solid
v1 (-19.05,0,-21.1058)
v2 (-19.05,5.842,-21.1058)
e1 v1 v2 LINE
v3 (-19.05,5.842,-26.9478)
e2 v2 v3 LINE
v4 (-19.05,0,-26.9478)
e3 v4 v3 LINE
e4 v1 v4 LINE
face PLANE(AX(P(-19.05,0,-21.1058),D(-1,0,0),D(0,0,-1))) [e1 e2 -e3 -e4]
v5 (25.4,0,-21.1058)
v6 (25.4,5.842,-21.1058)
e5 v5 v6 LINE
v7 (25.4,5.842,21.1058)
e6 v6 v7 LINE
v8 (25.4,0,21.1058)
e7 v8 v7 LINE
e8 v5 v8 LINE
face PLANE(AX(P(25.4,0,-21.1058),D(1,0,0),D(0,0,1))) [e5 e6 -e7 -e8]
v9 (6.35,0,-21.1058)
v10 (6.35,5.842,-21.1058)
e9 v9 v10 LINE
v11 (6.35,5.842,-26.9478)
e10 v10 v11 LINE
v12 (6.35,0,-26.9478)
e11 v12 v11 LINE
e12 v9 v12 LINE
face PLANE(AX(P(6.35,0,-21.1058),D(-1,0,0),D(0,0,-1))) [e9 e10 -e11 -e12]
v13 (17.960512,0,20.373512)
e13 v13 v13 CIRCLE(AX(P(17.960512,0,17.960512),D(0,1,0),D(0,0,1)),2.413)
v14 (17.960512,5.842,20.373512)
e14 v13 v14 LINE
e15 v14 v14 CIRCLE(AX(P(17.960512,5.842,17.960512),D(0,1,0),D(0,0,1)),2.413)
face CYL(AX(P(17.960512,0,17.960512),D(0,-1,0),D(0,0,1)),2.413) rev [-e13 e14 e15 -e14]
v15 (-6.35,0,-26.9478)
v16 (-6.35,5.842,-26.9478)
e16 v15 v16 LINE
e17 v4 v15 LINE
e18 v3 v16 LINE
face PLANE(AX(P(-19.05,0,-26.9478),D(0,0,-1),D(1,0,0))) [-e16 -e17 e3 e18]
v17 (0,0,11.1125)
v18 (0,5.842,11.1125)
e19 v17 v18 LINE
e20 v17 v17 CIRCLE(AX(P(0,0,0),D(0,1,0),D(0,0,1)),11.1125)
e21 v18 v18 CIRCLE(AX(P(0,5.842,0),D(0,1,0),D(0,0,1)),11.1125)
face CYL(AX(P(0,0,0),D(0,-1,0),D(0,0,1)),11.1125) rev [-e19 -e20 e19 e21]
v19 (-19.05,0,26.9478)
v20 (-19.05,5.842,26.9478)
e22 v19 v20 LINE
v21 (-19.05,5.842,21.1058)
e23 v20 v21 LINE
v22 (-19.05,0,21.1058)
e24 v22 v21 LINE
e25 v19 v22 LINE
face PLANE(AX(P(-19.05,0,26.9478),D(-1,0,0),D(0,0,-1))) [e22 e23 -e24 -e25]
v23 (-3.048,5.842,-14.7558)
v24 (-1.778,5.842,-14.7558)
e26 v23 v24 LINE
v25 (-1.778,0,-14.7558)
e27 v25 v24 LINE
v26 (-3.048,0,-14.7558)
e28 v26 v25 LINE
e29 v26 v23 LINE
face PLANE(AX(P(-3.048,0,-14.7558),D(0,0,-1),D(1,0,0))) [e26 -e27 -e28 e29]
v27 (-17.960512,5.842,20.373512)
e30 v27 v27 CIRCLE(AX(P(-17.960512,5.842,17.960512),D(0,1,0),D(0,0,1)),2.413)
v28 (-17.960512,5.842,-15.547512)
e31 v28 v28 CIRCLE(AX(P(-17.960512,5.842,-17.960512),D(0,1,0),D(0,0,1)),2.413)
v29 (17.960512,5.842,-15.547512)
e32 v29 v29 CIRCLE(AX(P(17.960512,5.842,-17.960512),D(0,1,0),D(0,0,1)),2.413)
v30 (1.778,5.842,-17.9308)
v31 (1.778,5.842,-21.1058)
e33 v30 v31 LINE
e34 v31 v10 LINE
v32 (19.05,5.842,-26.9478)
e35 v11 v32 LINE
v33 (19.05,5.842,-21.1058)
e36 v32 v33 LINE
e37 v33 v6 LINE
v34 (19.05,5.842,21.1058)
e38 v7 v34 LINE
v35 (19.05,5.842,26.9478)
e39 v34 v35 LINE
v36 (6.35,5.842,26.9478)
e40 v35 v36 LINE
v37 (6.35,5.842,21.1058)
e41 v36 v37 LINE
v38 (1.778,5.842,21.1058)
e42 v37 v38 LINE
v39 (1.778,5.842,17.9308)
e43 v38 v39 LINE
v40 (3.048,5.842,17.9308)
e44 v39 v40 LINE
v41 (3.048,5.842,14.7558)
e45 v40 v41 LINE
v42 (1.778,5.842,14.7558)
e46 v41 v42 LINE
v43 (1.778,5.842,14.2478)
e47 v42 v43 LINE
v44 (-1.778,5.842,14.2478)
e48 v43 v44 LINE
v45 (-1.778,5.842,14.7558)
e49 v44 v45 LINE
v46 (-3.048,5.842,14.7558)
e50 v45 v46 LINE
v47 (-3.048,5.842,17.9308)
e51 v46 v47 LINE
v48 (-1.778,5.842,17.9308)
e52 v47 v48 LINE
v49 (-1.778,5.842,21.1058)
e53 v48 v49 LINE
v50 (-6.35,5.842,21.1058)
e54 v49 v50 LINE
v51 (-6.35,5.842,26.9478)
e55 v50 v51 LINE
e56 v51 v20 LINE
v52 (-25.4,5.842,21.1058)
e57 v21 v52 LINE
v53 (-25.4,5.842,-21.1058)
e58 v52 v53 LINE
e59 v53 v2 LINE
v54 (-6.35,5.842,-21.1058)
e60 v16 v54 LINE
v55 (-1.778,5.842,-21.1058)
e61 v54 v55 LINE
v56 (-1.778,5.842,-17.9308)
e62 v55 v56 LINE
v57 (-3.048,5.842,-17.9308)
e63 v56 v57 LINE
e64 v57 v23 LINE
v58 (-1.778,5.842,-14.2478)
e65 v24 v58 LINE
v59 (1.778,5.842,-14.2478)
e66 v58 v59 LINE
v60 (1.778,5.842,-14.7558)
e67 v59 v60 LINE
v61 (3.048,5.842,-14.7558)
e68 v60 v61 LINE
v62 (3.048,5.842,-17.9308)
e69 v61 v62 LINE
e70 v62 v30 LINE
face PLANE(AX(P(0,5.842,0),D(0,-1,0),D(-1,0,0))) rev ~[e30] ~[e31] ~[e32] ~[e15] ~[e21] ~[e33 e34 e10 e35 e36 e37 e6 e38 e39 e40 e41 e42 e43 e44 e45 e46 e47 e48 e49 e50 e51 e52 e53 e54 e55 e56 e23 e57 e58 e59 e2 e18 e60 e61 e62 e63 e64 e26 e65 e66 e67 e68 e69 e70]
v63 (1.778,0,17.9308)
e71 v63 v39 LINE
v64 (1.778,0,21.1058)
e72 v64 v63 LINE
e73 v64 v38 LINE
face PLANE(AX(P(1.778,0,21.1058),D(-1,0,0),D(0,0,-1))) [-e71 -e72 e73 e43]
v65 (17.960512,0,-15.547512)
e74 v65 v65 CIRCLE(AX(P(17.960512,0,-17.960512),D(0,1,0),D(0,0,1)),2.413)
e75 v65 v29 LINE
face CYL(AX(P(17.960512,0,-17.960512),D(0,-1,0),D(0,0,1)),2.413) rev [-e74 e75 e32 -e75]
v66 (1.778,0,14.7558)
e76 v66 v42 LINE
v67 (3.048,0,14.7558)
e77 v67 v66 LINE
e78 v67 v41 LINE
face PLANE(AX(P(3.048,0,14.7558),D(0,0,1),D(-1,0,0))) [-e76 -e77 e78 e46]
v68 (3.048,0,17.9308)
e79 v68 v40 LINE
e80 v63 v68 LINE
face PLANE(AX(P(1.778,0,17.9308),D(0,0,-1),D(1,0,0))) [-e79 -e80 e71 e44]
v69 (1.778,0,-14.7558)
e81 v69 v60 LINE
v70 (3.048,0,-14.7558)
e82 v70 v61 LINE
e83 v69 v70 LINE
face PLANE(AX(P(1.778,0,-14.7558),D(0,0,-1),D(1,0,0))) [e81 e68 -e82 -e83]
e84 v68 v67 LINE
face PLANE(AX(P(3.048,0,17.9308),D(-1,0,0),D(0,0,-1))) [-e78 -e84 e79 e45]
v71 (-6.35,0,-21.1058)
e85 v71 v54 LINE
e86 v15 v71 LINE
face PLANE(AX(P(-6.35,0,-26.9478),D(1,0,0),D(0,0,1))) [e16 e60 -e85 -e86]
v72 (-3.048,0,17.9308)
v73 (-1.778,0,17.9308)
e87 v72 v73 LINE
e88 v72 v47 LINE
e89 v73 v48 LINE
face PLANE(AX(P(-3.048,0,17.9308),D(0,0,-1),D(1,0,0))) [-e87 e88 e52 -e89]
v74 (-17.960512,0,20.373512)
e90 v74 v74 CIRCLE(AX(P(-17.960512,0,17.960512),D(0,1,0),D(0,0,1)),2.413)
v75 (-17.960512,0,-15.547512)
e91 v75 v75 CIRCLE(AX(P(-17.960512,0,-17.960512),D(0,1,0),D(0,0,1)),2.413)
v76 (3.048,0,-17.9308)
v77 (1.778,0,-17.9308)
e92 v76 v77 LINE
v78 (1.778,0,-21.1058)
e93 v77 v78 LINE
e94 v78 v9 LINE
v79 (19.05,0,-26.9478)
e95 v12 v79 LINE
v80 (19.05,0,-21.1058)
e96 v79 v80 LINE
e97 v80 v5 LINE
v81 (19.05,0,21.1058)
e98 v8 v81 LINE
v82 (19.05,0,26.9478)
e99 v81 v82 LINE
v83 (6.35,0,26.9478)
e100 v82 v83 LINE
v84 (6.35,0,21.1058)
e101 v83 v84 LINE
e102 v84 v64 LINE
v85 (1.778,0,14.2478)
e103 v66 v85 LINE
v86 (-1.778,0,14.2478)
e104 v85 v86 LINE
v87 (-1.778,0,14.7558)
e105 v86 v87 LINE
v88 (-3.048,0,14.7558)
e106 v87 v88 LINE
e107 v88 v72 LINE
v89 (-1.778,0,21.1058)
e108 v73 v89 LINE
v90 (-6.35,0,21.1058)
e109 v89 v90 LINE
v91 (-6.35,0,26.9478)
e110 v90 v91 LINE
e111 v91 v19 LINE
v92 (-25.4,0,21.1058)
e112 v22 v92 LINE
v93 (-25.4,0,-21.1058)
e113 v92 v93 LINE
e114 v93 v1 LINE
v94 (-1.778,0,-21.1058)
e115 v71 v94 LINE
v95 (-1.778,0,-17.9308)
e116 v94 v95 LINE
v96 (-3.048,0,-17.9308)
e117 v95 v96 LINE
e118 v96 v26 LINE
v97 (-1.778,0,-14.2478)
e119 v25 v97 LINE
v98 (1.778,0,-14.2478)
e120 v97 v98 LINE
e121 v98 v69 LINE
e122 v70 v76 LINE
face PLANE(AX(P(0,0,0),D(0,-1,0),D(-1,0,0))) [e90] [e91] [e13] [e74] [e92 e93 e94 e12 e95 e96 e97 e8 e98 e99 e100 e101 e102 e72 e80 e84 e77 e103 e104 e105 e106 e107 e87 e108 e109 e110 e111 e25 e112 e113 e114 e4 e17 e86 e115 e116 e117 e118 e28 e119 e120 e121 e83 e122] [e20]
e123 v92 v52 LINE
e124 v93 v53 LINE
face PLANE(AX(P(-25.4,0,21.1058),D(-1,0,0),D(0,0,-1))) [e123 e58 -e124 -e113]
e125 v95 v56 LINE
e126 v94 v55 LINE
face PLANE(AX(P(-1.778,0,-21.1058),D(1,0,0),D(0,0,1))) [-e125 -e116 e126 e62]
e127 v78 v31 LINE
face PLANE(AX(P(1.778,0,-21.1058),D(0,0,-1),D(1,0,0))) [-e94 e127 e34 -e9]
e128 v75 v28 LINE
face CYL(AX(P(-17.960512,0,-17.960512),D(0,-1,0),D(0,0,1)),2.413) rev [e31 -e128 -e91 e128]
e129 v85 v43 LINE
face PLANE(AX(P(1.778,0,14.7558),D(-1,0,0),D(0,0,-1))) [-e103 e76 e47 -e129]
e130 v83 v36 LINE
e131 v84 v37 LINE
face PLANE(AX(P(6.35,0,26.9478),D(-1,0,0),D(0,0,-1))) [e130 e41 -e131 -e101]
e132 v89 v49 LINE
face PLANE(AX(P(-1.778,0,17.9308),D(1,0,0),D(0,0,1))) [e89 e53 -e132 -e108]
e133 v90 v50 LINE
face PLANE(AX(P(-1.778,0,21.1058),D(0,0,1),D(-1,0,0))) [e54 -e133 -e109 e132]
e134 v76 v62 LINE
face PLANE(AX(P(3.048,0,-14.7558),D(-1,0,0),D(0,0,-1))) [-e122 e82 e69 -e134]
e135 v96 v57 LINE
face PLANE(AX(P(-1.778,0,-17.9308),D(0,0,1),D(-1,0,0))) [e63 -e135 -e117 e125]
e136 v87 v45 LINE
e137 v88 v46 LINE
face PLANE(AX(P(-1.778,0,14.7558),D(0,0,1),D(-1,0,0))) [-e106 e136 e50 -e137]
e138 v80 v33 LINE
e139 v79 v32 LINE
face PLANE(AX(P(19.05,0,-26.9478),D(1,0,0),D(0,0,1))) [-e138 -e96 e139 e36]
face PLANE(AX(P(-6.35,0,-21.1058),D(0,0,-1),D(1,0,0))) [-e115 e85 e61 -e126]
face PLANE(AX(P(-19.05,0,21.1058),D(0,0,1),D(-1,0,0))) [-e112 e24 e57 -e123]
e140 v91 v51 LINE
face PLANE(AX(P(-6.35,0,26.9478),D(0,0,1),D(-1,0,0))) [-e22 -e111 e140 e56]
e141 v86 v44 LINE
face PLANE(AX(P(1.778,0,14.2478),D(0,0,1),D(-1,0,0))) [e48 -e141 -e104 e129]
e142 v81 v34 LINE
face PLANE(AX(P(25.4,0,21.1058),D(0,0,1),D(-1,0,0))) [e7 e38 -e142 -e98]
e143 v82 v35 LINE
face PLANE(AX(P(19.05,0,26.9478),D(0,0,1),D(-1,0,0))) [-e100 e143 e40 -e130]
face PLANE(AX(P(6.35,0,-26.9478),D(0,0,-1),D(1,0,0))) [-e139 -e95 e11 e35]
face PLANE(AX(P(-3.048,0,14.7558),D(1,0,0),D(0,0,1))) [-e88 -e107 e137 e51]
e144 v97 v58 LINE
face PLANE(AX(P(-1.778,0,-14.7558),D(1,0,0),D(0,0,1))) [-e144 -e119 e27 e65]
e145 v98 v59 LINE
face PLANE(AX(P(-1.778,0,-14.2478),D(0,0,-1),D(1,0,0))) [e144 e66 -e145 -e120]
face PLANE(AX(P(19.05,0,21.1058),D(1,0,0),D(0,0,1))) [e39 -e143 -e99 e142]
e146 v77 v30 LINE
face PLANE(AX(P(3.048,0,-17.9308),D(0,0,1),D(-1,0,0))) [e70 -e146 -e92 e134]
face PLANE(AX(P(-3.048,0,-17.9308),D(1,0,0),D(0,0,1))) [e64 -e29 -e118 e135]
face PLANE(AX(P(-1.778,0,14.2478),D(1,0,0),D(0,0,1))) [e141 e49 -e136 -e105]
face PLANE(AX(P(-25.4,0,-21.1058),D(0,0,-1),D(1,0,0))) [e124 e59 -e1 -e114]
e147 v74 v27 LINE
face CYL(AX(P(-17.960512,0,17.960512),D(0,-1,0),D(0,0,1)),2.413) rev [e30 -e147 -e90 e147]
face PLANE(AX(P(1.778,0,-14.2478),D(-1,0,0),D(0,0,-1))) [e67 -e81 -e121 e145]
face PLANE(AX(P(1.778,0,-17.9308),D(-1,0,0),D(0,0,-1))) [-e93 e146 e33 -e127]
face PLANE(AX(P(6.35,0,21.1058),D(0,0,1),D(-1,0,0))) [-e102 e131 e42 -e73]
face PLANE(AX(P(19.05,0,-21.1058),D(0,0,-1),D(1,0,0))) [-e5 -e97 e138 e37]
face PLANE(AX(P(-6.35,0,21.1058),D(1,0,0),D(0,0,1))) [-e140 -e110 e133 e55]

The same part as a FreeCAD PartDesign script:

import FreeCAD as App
import Part
import Sketcher

V = App.Vector
Q = App.Units.Quantity


def add_polygon(sketch, points):
    """Adds a closed chain of lines whose ends are joined by coincident constraints."""
    first, n = sketch.GeometryCount, len(points)
    for a, b in zip(points, points[1:] + points[:1]):
        sketch.addGeometry(Part.LineSegment(App.Vector(*a, 0), App.Vector(*b, 0)), False)
    for i in range(n):
        sketch.addConstraint(Sketcher.Constraint("Coincident", first + i, 2, first + (i + 1) % n, 1))

doc = App.newDocument("Part")
body = doc.addObject("PartDesign::Body", "Body")

sketch1 = body.newObject("Sketcher::SketchObject", "Sketch")
sketch1.AttachmentSupport = (doc.getObject("XZ_Plane"), [""])
sketch1.MapMode = "FlatFace"
add_polygon(sketch1, [(19.05, 21.1058), (25.4, 21.1058), (25.4, -21.1058), (19.05, -21.1058), (19.05, -26.9478), (6.35, -26.9478), (6.35, -21.1058), (1.778, -21.1058), (1.778, -17.9308), (3.048, -17.9308), (3.048, -14.7558), (1.778, -14.7558), (1.778, -14.2478), (-1.778, -14.2478), (-1.778, -14.7558), (-3.048, -14.7558), (-3.048, -17.9308), (-1.778, -17.9308), (-1.778, -21.1058), (-6.35, -21.1058), (-6.35, -26.9478), (-19.05, -26.9478), (-19.05, -21.1058), (-25.4, -21.1058), (-25.4, 21.1058), (-19.05, 21.1058), (-19.05, 26.9478), (-6.35, 26.9478), (-6.35, 21.1058), (-1.778, 21.1058), (-1.778, 17.9308), (-3.048, 17.9308), (-3.048, 14.7558), (-1.778, 14.7558), (-1.778, 14.2478), (1.778, 14.2478), (1.778, 14.7558), (3.048, 14.7558), (3.048, 17.9308), (1.778, 17.9308), (1.778, 21.1058), (6.35, 21.1058), (6.35, 26.9478), (19.05, 26.9478)])
sketch1.addGeometry(Part.Circle(V(17.960512, 17.960512, 0), V(0, 0, 1), 2.413), False)
sketch1.addGeometry(Part.Circle(V(-17.960512, 17.960512, 0), V(0, 0, 1), 2.413), False)
sketch1.addGeometry(Part.Circle(V(17.960512, -17.960512, 0), V(0, 0, 1), 2.413), False)
sketch1.addGeometry(Part.Circle(V(0, 0, 0), V(0, 0, 1), 11.1125), False)
sketch1.addGeometry(Part.Circle(V(-17.960512, -17.960512, 0), V(0, 0, 1), 2.413), False)
sketch1.addConstraint([
    Sketcher.Constraint("Horizontal", 0),
    Sketcher.Constraint("Vertical", 1),
    Sketcher.Constraint("Horizontal", 2),
    Sketcher.Constraint("Vertical", 3),
    Sketcher.Constraint("Horizontal", 4),
    Sketcher.Constraint("Vertical", 5),
    Sketcher.Constraint("Horizontal", 6),
    Sketcher.Constraint("Vertical", 7),
    Sketcher.Constraint("Horizontal", 8),
    Sketcher.Constraint("Vertical", 9),
    Sketcher.Constraint("Horizontal", 10),
    Sketcher.Constraint("Vertical", 11),
    Sketcher.Constraint("Horizontal", 12),
    Sketcher.Constraint("Vertical", 13),
    Sketcher.Constraint("Horizontal", 14),
    Sketcher.Constraint("Vertical", 15),
    Sketcher.Constraint("Horizontal", 16),
    Sketcher.Constraint("Vertical", 17),
    Sketcher.Constraint("Horizontal", 18),
    Sketcher.Constraint("Vertical", 19),
    Sketcher.Constraint("Horizontal", 20),
    Sketcher.Constraint("Vertical", 21),
    Sketcher.Constraint("Horizontal", 22),
    Sketcher.Constraint("Vertical", 23),
    Sketcher.Constraint("Horizontal", 24),
    Sketcher.Constraint("Vertical", 25),
    Sketcher.Constraint("Horizontal", 26),
    Sketcher.Constraint("Vertical", 27),
    Sketcher.Constraint("Horizontal", 28),
    Sketcher.Constraint("Vertical", 29),
    Sketcher.Constraint("Horizontal", 30),
    Sketcher.Constraint("Vertical", 31),
    Sketcher.Constraint("Horizontal", 32),
    Sketcher.Constraint("Vertical", 33),
    Sketcher.Constraint("Horizontal", 34),
    Sketcher.Constraint("Vertical", 35),
    Sketcher.Constraint("Horizontal", 36),
    Sketcher.Constraint("Vertical", 37),
    Sketcher.Constraint("Horizontal", 38),
    Sketcher.Constraint("Vertical", 39),
    Sketcher.Constraint("Horizontal", 40),
    Sketcher.Constraint("Vertical", 41),
    Sketcher.Constraint("Horizontal", 42),
    Sketcher.Constraint("Vertical", 43),
    Sketcher.Constraint("Coincident", 47, 3, -1, 1),
    Sketcher.Constraint("Equal", 44, 45),
    Sketcher.Constraint("Equal", 45, 46),
    Sketcher.Constraint("Equal", 46, 48),
    Sketcher.Constraint("Symmetric", 45, 3, 46, 3, -1, 1),
    Sketcher.Constraint("Symmetric", 44, 3, 48, 3, -1, 1),
    Sketcher.Constraint("Symmetric", 0, 2, 22, 2, -1, 1),
    Sketcher.Constraint("Symmetric", 2, 2, 24, 2, -1, 1),
    Sketcher.Constraint("Symmetric", 4, 2, 26, 2, -1, 1),
    Sketcher.Constraint("Symmetric", 6, 2, 28, 2, -1, 1),
    Sketcher.Constraint("Symmetric", 8, 2, 30, 2, -1, 1),
    Sketcher.Constraint("Symmetric", 10, 2, 32, 2, -1, 1),
    Sketcher.Constraint("Symmetric", 12, 2, 34, 2, -1, 1),
    Sketcher.Constraint("Symmetric", 14, 2, 36, 2, -1, 1),
    Sketcher.Constraint("Symmetric", 16, 2, 38, 2, -1, 1),
    Sketcher.Constraint("Symmetric", 18, 2, 40, 2, -1, 1),
    Sketcher.Constraint("Symmetric", 20, 2, 42, 2, -1, 1),
    Sketcher.Constraint("Symmetric", 44, 3, 45, 3, -2),
    Sketcher.Constraint("Symmetric", 10, 2, 13, 2, -2),
    Sketcher.Constraint("Symmetric", 8, 2, 15, 2, -2),
    Sketcher.Constraint("Symmetric", 6, 2, 17, 2, -2),
    Sketcher.Constraint("Symmetric", 4, 2, 19, 2, -2),
    Sketcher.Constraint("Symmetric", 2, 2, 21, 2, -2),
    Sketcher.Constraint("Horizontal", 2, 2, 5, 2),
    Sketcher.Constraint("Vertical", 7, 2, 10, 2),
    Sketcher.Constraint("Equal", 7, 9),
    Sketcher.Constraint("Diameter", 44, Q("0.19 in")),
    Sketcher.Constraint("Diameter", 47, Q("0.875 in")),
    Sketcher.Constraint("DistanceX", 4, 2, 4, 1, Q("0.5 in")),
    Sketcher.Constraint("DistanceX", -1, 1, 0, 2, Q("1 in")),
    Sketcher.Constraint("DistanceX", 0, 1, 0, 2, Q("0.25 in")),
    Sketcher.Constraint("DistanceX", 6, 2, 6, 1, Q("0.18 in")),
    Sketcher.Constraint("DistanceX", 8, 1, 8, 2, Q("0.05 in")),
    Sketcher.Constraint("DistanceY", 3, 2, 3, 1, Q("0.23 in")),
    Sketcher.Constraint("DistanceY", 11, 1, 11, 2, Q("0.02 in")),
    Sketcher.Constraint("DistanceY", 7, 1, 7, 2, Q("0.125 in")),
    Sketcher.Constraint("DistanceY", 1, 2, 1, 1, Q("42.2116 mm")),
    Sketcher.Constraint("DistanceX", -1, 1, 44, 3, Q("17.960512 mm")),
    Sketcher.Constraint("DistanceY", -1, 1, 44, 3, Q("17.960512 mm")),
])
pad1 = body.newObject("PartDesign::Pad", "Pad")
pad1.Profile = sketch1
pad1.Length = Q("0.23 in")
pad1.Reversed = True

doc.recompute()
